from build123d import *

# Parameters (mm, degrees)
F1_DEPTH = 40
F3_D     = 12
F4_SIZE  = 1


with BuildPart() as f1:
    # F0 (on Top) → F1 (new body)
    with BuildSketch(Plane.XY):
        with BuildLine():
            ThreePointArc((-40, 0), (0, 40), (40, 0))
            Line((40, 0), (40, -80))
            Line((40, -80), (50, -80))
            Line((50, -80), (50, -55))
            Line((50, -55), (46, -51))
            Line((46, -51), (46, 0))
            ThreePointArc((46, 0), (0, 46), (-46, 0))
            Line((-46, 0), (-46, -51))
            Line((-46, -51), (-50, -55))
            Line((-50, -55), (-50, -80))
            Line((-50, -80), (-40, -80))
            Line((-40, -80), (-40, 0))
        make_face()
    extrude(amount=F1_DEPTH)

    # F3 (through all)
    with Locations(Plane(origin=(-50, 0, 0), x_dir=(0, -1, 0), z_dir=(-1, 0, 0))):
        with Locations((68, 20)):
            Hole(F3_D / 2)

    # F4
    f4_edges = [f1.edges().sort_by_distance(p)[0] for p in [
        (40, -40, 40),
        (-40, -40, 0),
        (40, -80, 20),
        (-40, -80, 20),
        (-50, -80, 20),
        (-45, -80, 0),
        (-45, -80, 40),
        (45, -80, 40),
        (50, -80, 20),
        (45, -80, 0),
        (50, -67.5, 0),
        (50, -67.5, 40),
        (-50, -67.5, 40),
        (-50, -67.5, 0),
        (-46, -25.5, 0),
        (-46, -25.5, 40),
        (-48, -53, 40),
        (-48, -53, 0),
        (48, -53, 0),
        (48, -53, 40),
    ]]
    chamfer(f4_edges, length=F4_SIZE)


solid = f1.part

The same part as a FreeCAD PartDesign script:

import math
import FreeCAD as App
import Part
import Sketcher

V = App.Vector


def edges_at(feature, points):
    """Names of the edges that pass closest to the given points."""
    edges = feature.Shape.Edges
    near = lambda p: min(range(len(edges)), key=lambda i: edges[i].distToShape(Part.Vertex(*p))[0])
    return sorted({f"Edge{near(p) + 1}" for p in points})

doc = App.newDocument("Part")
params = doc.addObject("Spreadsheet::Sheet", "Params")
for row, (alias, value) in enumerate([
    ("sketch1_radius", "40 mm"),
    ("sketch1_radius2", "46 mm"),
    ("sketch1_width", "10 mm"),
    ("sketch1_height", "80 mm"),
    ("sketch1_height2", "25 mm"),
    ("pad1_length", "40 mm"),
    ("sketch2_diameter", "12 mm"),
    ("hole_diameter", "12 mm"),
    ("chamfer_size", "1 mm"),
], start=1):
    params.set(f"A{row}", alias)
    params.set(f"B{row}", "=" + value)
    params.setAlias(f"B{row}", alias)

body = doc.addObject("PartDesign::Body", "Body")

# Sketch on XY plane
sketch1 = body.newObject("Sketcher::SketchObject", "Sketch")
sketch1.AttachmentSupport = (doc.getObject("XY_Plane"), [""])
sketch1.MapMode = "FlatFace"
sketch1.addGeometry([
    Part.ArcOfCircle(Part.Circle(V(0, 0, 0), V(0, 0, 1), 40), math.radians(0), math.radians(180)),  # 0
    Part.LineSegment(V(40, 0, 0), V(40, -80, 0)),  # 1
    Part.LineSegment(V(40, -80, 0), V(50, -80, 0)),  # 2
    Part.LineSegment(V(50, -80, 0), V(50, -55, 0)),  # 3
    Part.LineSegment(V(50, -55, 0), V(46, -51, 0)),  # 4
    Part.LineSegment(V(46, -51, 0), V(46, 0, 0)),  # 5
    Part.ArcOfCircle(Part.Circle(V(0, 0, 0), V(0, 0, 1), 46), math.radians(0), math.radians(180)),  # 6
    Part.LineSegment(V(-46, 0, 0), V(-46, -51, 0)),  # 7
    Part.LineSegment(V(-46, -51, 0), V(-50, -55, 0)),  # 8
    Part.LineSegment(V(-50, -55, 0), V(-50, -80, 0)),  # 9
    Part.LineSegment(V(-50, -80, 0), V(-40, -80, 0)),  # 10
    Part.LineSegment(V(-40, -80, 0), V(-40, 0, 0)),  # 11
], False)
sketch1.addConstraint([
    Sketcher.Constraint("Tangent", 0, 1, 1, 1),
    Sketcher.Constraint("Coincident", 1, 2, 2, 1),
    Sketcher.Constraint("Coincident", 2, 2, 3, 1),
    Sketcher.Constraint("Coincident", 3, 2, 4, 1),
    Sketcher.Constraint("Coincident", 4, 2, 5, 1),
    Sketcher.Constraint("Tangent", 5, 2, 6, 1),
    Sketcher.Constraint("Tangent", 6, 2, 7, 1),
    Sketcher.Constraint("Coincident", 7, 2, 8, 1),
    Sketcher.Constraint("Coincident", 8, 2, 9, 1),
    Sketcher.Constraint("Coincident", 9, 2, 10, 1),
    Sketcher.Constraint("Coincident", 10, 2, 11, 1),
    Sketcher.Constraint("Tangent", 11, 2, 0, 2),
    Sketcher.Constraint("Vertical", 1),
    Sketcher.Constraint("Horizontal", 2),
    Sketcher.Constraint("Vertical", 3),
    Sketcher.Constraint("Vertical", 5),
    Sketcher.Constraint("Vertical", 7),
    Sketcher.Constraint("Vertical", 9),
    Sketcher.Constraint("Horizontal", 10),
    Sketcher.Constraint("Vertical", 11),
    Sketcher.Constraint("Coincident", 0, 3, -1, 1),
    Sketcher.Constraint("Coincident", 6, 3, -1, 1),
    Sketcher.Constraint("Symmetric", 3, 2, 8, 2, -2),
    Sketcher.Constraint("Perpendicular", 4, 8),
    Sketcher.Constraint("Horizontal", 4, 2, 7, 2),
    Sketcher.Constraint("Horizontal", 2, 2, 9, 2),
    Sketcher.Constraint("Radius", 0, 40.0),
    Sketcher.Constraint("Radius", 6, 46.0),
    Sketcher.Constraint("DistanceX", 2, 1, 2, 2, 10.0),
    Sketcher.Constraint("DistanceY", 1, 2, 1, 1, 80.0),
    Sketcher.Constraint("DistanceY", 3, 1, 3, 2, 25.0),
])
sketch1.setExpression("Constraints[26]", "Params.sketch1_radius")
sketch1.setExpression("Constraints[27]", "Params.sketch1_radius2")
sketch1.setExpression("Constraints[28]", "Params.sketch1_width")
sketch1.setExpression("Constraints[29]", "Params.sketch1_height")
sketch1.setExpression("Constraints[30]", "Params.sketch1_height2")
pad1 = body.newObject("PartDesign::Pad", "Pad")
pad1.Profile = sketch1
pad1.setExpression("Length", "Params.pad1_length")

# Sketch on YZ plane
sketch2 = body.newObject("Sketcher::SketchObject", "Sketch001")
sketch2.AttachmentSupport = (doc.getObject("YZ_Plane"), [""])
sketch2.MapMode = "FlatFace"
sketch2.AttachmentOffset = App.Placement(V(0, 0, -50), App.Rotation())
sketch2.addGeometry(Part.Circle(V(-68, 20, 0), V(0, 0, 1), 6), False)
sketch2.addConstraint([
    Sketcher.Constraint("Diameter", 0, 12.0),
    Sketcher.Constraint("DistanceX", 0, 3, -1, 1, 68.0),
    Sketcher.Constraint("DistanceY", -1, 1, 0, 3, 20.0),
])
sketch2.setExpression("Constraints[0]", "Params.sketch2_diameter")
doc.recompute()
hole = body.newObject("PartDesign::Hole", "Hole")
hole.Profile = sketch2
hole.ThreadType = "None"
hole.setExpression("Diameter", "Params.hole_diameter")
hole.DepthType = "ThroughAll"
hole.Reversed = True
doc.recompute()

chamfer = body.newObject("PartDesign::Chamfer", "Chamfer")
chamfer.Base = (hole, edges_at(hole, [
    (40, -40, 40),
    (-40, -40, 0),
    (40, -80, 20),
    (-40, -80, 20),
    (-50, -80, 20),
    (-45, -80, 0),
    (-45, -80, 40),
    (45, -80, 40),
    (50, -80, 20),
    (45, -80, 0),
    (50, -67.5, 0),
    (50, -67.5, 40),
    (-50, -67.5, 40),
    (-50, -67.5, 0),
    (-46, -25.5, 0),
    (-46, -25.5, 40),
    (-48, -53, 40),
    (-48, -53, 0),
    (48, -53, 0),
    (48, -53, 40),
]))
chamfer.setExpression("Size", "Params.chamfer_size")

doc.recompute()
